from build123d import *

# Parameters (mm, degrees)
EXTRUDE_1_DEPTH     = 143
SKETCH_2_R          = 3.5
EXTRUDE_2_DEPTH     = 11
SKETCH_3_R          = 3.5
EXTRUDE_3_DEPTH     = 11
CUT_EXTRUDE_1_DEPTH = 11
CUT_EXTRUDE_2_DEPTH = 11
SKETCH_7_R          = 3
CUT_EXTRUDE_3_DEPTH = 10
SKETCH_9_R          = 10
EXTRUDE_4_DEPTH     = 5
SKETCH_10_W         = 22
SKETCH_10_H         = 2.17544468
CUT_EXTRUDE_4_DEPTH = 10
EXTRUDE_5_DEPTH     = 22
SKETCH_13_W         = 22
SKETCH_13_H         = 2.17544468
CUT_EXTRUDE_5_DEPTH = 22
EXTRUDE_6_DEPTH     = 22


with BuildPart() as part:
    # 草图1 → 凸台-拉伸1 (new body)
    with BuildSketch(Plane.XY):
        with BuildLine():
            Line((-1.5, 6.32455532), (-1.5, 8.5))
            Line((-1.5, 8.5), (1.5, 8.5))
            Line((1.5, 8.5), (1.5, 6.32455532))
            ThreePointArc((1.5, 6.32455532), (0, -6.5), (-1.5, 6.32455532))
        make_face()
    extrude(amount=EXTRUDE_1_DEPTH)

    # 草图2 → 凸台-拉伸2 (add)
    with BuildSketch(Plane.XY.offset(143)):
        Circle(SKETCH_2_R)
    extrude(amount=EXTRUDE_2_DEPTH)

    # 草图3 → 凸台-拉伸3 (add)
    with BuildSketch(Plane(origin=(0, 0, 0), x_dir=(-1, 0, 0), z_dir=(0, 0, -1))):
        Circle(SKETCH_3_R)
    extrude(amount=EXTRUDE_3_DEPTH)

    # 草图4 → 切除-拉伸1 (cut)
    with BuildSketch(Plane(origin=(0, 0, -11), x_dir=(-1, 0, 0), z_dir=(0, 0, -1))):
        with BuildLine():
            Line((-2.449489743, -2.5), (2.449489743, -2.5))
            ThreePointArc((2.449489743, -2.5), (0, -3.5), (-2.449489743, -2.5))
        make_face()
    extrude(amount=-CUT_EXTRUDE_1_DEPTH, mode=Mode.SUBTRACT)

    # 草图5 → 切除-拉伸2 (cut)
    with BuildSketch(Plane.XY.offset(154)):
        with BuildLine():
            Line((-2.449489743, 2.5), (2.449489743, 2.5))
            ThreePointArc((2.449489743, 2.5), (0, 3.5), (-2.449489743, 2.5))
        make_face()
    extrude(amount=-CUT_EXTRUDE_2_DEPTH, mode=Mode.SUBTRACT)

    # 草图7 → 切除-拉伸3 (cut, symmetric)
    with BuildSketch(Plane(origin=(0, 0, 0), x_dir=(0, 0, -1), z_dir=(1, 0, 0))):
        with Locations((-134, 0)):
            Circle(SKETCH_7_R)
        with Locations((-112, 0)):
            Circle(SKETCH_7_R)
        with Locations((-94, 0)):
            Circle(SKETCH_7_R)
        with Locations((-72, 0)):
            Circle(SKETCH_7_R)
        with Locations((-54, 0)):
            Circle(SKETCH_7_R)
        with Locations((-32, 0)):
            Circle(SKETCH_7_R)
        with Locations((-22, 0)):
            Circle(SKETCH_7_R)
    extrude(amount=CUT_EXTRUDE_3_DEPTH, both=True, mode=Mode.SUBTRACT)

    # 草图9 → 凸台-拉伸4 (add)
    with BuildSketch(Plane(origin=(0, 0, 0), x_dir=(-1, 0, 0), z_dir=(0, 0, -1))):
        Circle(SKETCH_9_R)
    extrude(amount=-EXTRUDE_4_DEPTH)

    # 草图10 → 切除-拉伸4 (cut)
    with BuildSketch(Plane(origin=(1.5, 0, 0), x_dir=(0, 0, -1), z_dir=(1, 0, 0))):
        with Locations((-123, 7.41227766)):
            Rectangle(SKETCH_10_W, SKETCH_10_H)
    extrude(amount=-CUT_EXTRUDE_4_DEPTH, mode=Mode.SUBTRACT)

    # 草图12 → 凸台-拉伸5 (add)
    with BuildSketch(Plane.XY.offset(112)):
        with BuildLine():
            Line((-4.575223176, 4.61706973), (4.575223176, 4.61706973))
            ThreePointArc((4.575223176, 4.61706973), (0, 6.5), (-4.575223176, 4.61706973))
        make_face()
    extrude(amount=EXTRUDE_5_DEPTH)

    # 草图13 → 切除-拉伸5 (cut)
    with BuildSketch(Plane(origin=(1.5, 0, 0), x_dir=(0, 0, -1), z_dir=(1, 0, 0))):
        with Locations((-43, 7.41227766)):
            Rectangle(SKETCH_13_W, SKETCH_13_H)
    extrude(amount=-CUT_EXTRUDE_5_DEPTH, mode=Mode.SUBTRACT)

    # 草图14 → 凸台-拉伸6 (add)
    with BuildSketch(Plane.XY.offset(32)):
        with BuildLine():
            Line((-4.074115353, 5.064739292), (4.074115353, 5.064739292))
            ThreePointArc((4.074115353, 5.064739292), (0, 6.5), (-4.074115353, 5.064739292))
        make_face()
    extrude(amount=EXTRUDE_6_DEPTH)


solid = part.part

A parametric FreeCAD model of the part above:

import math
import FreeCAD as App
import Part
import Sketcher

V = App.Vector
Q = App.Units.Quantity


def add_polygon(sketch, points):
    """Adds a closed chain of lines whose ends are joined by coincident constraints."""
    first, n = sketch.GeometryCount, len(points)
    for a, b in zip(points, points[1:] + points[:1]):
        sketch.addGeometry(Part.LineSegment(App.Vector(*a, 0), App.Vector(*b, 0)), False)
    for i in range(n):
        sketch.addConstraint(Sketcher.Constraint("Coincident", first + i, 2, first + (i + 1) % n, 1))

doc = App.newDocument("Part")
params = doc.addObject("Spreadsheet::Sheet", "Params")
for row, (alias, value) in enumerate([
    ("sketch1_radius", "6.5 mm"),
    ("sketch1_width", "3 mm"),
    ("pad1_length", "143 mm"),
    ("sketch2_diameter", "7 mm"),
    ("pad2_length", "11 mm"),
    ("sketch3_diameter", "7 mm"),
    ("pad3_length", "11 mm"),
    ("sketch4_radius", "3.5 mm"),
    ("pocket1_length", "11 mm"),
    ("sketch5_radius", "3.5 mm"),
    ("pocket2_length", "11 mm"),
    ("sketch6_diameter", "6 mm"),
    ("pocket3_length", "20 mm"),
    ("sketch7_diameter", "20 mm"),
    ("pad4_length", "5 mm"),
    ("sketch8_height", "22 mm"),
    ("pocket4_length", "10 mm"),
    ("sketch9_radius", "6.5 mm"),
    ("pad5_length", "22 mm"),
    ("sketch10_height", "22 mm"),
    ("pocket5_length", "22 mm"),
    ("sketch11_radius", "6.5 mm"),
    ("pad6_length", "22 mm"),
], start=1):
    params.set(f"A{row}", alias)
    params.set(f"B{row}", "=" + value)
    params.setAlias(f"B{row}", alias)

body = doc.addObject("PartDesign::Body", "Body")

# Sketch on XY plane
sketch1 = doc.addObject("Sketcher::SketchObject", "Sketch")
body.addObject(sketch1)
sketch1.AttachmentSupport = (doc.XY_Plane, [""])
sketch1.MapMode = "FlatFace"
sketch1.addGeometry(Part.LineSegment(V(-1.5, 8.5, 0), V(-1.5, 6.3, 0)), False)
sketch1.addGeometry(Part.ArcOfCircle(Part.Circle(V(0, 0, 0), V(0, 0, 1), 6.5), math.radians(103), math.radians(437)), False)
sketch1.addGeometry(Part.LineSegment(V(1.5, 6.3, 0), V(1.5, 8.5, 0)), False)
sketch1.addGeometry(Part.LineSegment(V(1.5, 8.5, 0), V(-1.5, 8.5, 0)), False)
sketch1.addConstraint(Sketcher.Constraint("Coincident", 0, 2, 1, 1))
sketch1.addConstraint(Sketcher.Constraint("Coincident", 1, 2, 2, 1))
sketch1.addConstraint(Sketcher.Constraint("Coincident", 2, 2, 3, 1))
sketch1.addConstraint(Sketcher.Constraint("Coincident", 3, 2, 0, 1))
sketch1.addConstraint(Sketcher.Constraint("Vertical", 0))
sketch1.addConstraint(Sketcher.Constraint("Vertical", 2))
sketch1.addConstraint(Sketcher.Constraint("Horizontal", 3))
sketch1.addConstraint(Sketcher.Constraint("Coincident", 1, 3, -1, 1))
sketch1.addConstraint(Sketcher.Constraint("Horizontal", 0, 2, 1, 2))
sketch1.addConstraint(Sketcher.Constraint("Radius", 1, Q("6.5 mm")))
sketch1.addConstraint(Sketcher.Constraint("DistanceX", 3, 2, 3, 1, Q("3 mm")))
sketch1.addConstraint(Sketcher.Constraint("DistanceY", -1, 1, 2, 2, Q("8.5 mm")))
sketch1.setExpression("Constraints[9]", "Params.sketch1_radius")
sketch1.setExpression("Constraints[10]", "Params.sketch1_width")
pad1 = doc.addObject("PartDesign::Pad", "Pad")
body.addObject(pad1)
pad1.Profile = sketch1
pad1.setExpression("Length", "Params.pad1_length")

# Sketch on XY plane
sketch2 = doc.addObject("Sketcher::SketchObject", "Sketch001")
body.addObject(sketch2)
sketch2.AttachmentSupport = (doc.XY_Plane, [""])
sketch2.MapMode = "FlatFace"
sketch2.AttachmentOffset = App.Placement(V(0, 0, 143), App.Rotation())
sketch2.addGeometry(Part.Circle(V(0, 0, 0), V(0, 0, 1), 3.5), False)
sketch2.addConstraint(Sketcher.Constraint("Coincident", 0, 3, -1, 1))
sketch2.addConstraint(Sketcher.Constraint("Diameter", 0, Q("7 mm")))
sketch2.setExpression("Constraints[1]", "Params.sketch2_diameter")
pad2 = doc.addObject("PartDesign::Pad", "Pad001")
body.addObject(pad2)
pad2.Profile = sketch2
pad2.setExpression("Length", "Params.pad2_length")

# Sketch on XY plane
sketch3 = doc.addObject("Sketcher::SketchObject", "Sketch002")
body.addObject(sketch3)
sketch3.AttachmentSupport = (doc.XY_Plane, [""])
sketch3.MapMode = "FlatFace"
sketch3.addGeometry(Part.Circle(V(0, 0, 0), V(0, 0, 1), 3.5), False)
sketch3.addConstraint(Sketcher.Constraint("Coincident", 0, 3, -1, 1))
sketch3.addConstraint(Sketcher.Constraint("Diameter", 0, Q("7 mm")))
sketch3.setExpression("Constraints[1]", "Params.sketch3_diameter")
pad3 = doc.addObject("PartDesign::Pad", "Pad002")
body.addObject(pad3)
pad3.Profile = sketch3
pad3.setExpression("Length", "Params.pad3_length")
pad3.Reversed = True

# Sketch on XY plane
sketch4 = doc.addObject("Sketcher::SketchObject", "Sketch003")
body.addObject(sketch4)
sketch4.AttachmentSupport = (doc.XY_Plane, [""])
sketch4.MapMode = "FlatFace"
sketch4.AttachmentOffset = App.Placement(V(0, 0, -11), App.Rotation())
sketch4.addGeometry(Part.LineSegment(V(-2.4, -2.5, 0), V(2.4, -2.5, 0)), False)
sketch4.addGeometry(Part.ArcOfCircle(Part.Circle(V(0, 0, 0), V(0, 0, 1), 3.5), math.radians(-134), math.radians(-46)), False)
sketch4.addConstraint(Sketcher.Constraint("Coincident", 0, 1, 1, 1))
sketch4.addConstraint(Sketcher.Constraint("Coincident", 1, 2, 0, 2))
sketch4.addConstraint(Sketcher.Constraint("Horizontal", 0))
sketch4.addConstraint(Sketcher.Constraint("Coincident", 1, 3, -1, 1))
sketch4.addConstraint(Sketcher.Constraint("Radius", 1, Q("3.5 mm")))
sketch4.addConstraint(Sketcher.Constraint("DistanceY", 0, 1, -1, 1, Q("2.5 mm")))
sketch4.setExpression("Constraints[4]", "Params.sketch4_radius")
pocket1 = doc.addObject("PartDesign::Pocket", "Pocket")
body.addObject(pocket1)
pocket1.Profile = sketch4
pocket1.setExpression("Length", "Params.pocket1_length")
pocket1.Reversed = True

# Sketch on XY plane
sketch5 = doc.addObject("Sketcher::SketchObject", "Sketch004")
body.addObject(sketch5)
sketch5.AttachmentSupport = (doc.XY_Plane, [""])
sketch5.MapMode = "FlatFace"
sketch5.AttachmentOffset = App.Placement(V(0, 0, 154), App.Rotation())
sketch5.addGeometry(Part.LineSegment(V(-2.4, 2.5, 0), V(2.4, 2.5, 0)), False)
sketch5.addGeometry(Part.ArcOfCircle(Part.Circle(V(0, 0, 0), V(0, 0, 1), 3.5), math.radians(46), math.radians(134)), False)
sketch5.addConstraint(Sketcher.Constraint("Coincident", 0, 1, 1, 2))
sketch5.addConstraint(Sketcher.Constraint("Coincident", 1, 1, 0, 2))
sketch5.addConstraint(Sketcher.Constraint("Horizontal", 0))
sketch5.addConstraint(Sketcher.Constraint("Coincident", 1, 3, -1, 1))
sketch5.addConstraint(Sketcher.Constraint("Radius", 1, Q("3.5 mm")))
sketch5.addConstraint(Sketcher.Constraint("DistanceY", -1, 1, 0, 1, Q("2.5 mm")))
sketch5.setExpression("Constraints[4]", "Params.sketch5_radius")
pocket2 = doc.addObject("PartDesign::Pocket", "Pocket001")
body.addObject(pocket2)
pocket2.Profile = sketch5
pocket2.setExpression("Length", "Params.pocket2_length")

# Sketch on YZ plane
sketch6 = doc.addObject("Sketcher::SketchObject", "Sketch005")
body.addObject(sketch6)
sketch6.AttachmentSupport = (doc.YZ_Plane, [""])
sketch6.MapMode = "FlatFace"
sketch6.addGeometry(Part.Circle(V(0, 134, 0), V(0, 0, 1), 3), False)
sketch6.addGeometry(Part.Circle(V(0, 112, 0), V(0, 0, 1), 3), False)
sketch6.addGeometry(Part.Circle(V(0, 94, 0), V(0, 0, 1), 3), False)
sketch6.addGeometry(Part.Circle(V(0, 72, 0), V(0, 0, 1), 3), False)
sketch6.addGeometry(Part.Circle(V(0, 54, 0), V(0, 0, 1), 3), False)
sketch6.addGeometry(Part.Circle(V(0, 32, 0), V(0, 0, 1), 3), False)
sketch6.addGeometry(Part.Circle(V(0, 22, 0), V(0, 0, 1), 3), False)
sketch6.addConstraint(Sketcher.Constraint("Equal", 0, 1))
sketch6.addConstraint(Sketcher.Constraint("Equal", 1, 2))
sketch6.addConstraint(Sketcher.Constraint("Equal", 2, 3))
sketch6.addConstraint(Sketcher.Constraint("Equal", 3, 4))
sketch6.addConstraint(Sketcher.Constraint("Equal", 4, 5))
sketch6.addConstraint(Sketcher.Constraint("Equal", 5, 6))
sketch6.addConstraint(Sketcher.Constraint("PointOnObject", 0, 3, -2))
sketch6.addConstraint(Sketcher.Constraint("PointOnObject", 1, 3, -2))
sketch6.addConstraint(Sketcher.Constraint("PointOnObject", 2, 3, -2))
sketch6.addConstraint(Sketcher.Constraint("PointOnObject", 3, 3, -2))
sketch6.addConstraint(Sketcher.Constraint("PointOnObject", 4, 3, -2))
sketch6.addConstraint(Sketcher.Constraint("PointOnObject", 5, 3, -2))
sketch6.addConstraint(Sketcher.Constraint("PointOnObject", 6, 3, -2))
sketch6.addConstraint(Sketcher.Constraint("Diameter", 0, Q("6 mm")))
sketch6.addConstraint(Sketcher.Constraint("DistanceY", -1, 1, 0, 3, Q("134 mm")))
sketch6.addConstraint(Sketcher.Constraint("DistanceY", -1, 1, 1, 3, Q("112 mm")))
sketch6.addConstraint(Sketcher.Constraint("DistanceY", -1, 1, 2, 3, Q("94 mm")))
sketch6.addConstraint(Sketcher.Constraint("DistanceY", -1, 1, 3, 3, Q("72 mm")))
sketch6.addConstraint(Sketcher.Constraint("DistanceY", -1, 1, 4, 3, Q("54 mm")))
sketch6.addConstraint(Sketcher.Constraint("DistanceY", -1, 1, 5, 3, Q("32 mm")))
sketch6.addConstraint(Sketcher.Constraint("DistanceY", -1, 1, 6, 3, Q("22 mm")))
sketch6.setExpression("Constraints[13]", "Params.sketch6_diameter")
pocket3 = doc.addObject("PartDesign::Pocket", "Pocket002")
body.addObject(pocket3)
pocket3.Profile = sketch6
pocket3.setExpression("Length", "Params.pocket3_length")
pocket3.Midplane = True

# Sketch on XY plane
sketch7 = doc.addObject("Sketcher::SketchObject", "Sketch006")
body.addObject(sketch7)
sketch7.AttachmentSupport = (doc.XY_Plane, [""])
sketch7.MapMode = "FlatFace"
sketch7.addGeometry(Part.Circle(V(0, 0, 0), V(0, 0, 1), 10), False)
sketch7.addConstraint(Sketcher.Constraint("Coincident", 0, 3, -1, 1))
sketch7.addConstraint(Sketcher.Constraint("Diameter", 0, Q("20 mm")))
sketch7.setExpression("Constraints[1]", "Params.sketch7_diameter")
pad4 = doc.addObject("PartDesign::Pad", "Pad003")
body.addObject(pad4)
pad4.Profile = sketch7
pad4.setExpression("Length", "Params.pad4_length")

# Sketch on YZ plane
sketch8 = doc.addObject("Sketcher::SketchObject", "Sketch007")
body.addObject(sketch8)
sketch8.AttachmentSupport = (doc.YZ_Plane, [""])
sketch8.MapMode = "FlatFace"
sketch8.AttachmentOffset = App.Placement(V(0, 0, 1.5), App.Rotation())
add_polygon(sketch8, [(8.5, 134), (6.3, 134), (6.3, 112), (8.5, 112)])  # lines 0-3
sketch8.addConstraint(Sketcher.Constraint("Horizontal", 0))
sketch8.addConstraint(Sketcher.Constraint("Vertical", 1))
sketch8.addConstraint(Sketcher.Constraint("Horizontal", 2))
sketch8.addConstraint(Sketcher.Constraint("Vertical", 3))
sketch8.addConstraint(Sketcher.Constraint("DistanceY", 1, 2, 1, 1, Q("22 mm")))
sketch8.addConstraint(Sketcher.Constraint("DistanceY", -1, 1, 0, 2, Q("134 mm")))
sketch8.addConstraint(Sketcher.Constraint("DistanceX", -1, 1, 2, 2, Q("8.5 mm")))
sketch8.addConstraint(Sketcher.Constraint("DistanceX", 0, 2, 0, 1, Q("2.175445 mm")))
sketch8.setExpression("Constraints[8]", "Params.sketch8_height")
pocket4 = doc.addObject("PartDesign::Pocket", "Pocket003")
body.addObject(pocket4)
pocket4.Profile = sketch8
pocket4.setExpression("Length", "Params.pocket4_length")

# Sketch on XY plane
sketch9 = doc.addObject("Sketcher::SketchObject", "Sketch008")
body.addObject(sketch9)
sketch9.AttachmentSupport = (doc.XY_Plane, [""])
sketch9.MapMode = "FlatFace"
sketch9.AttachmentOffset = App.Placement(V(0, 0, 112), App.Rotation())
sketch9.addGeometry(Part.LineSegment(V(-5, 5, 0), V(5, 5, 0)), False)
sketch9.addGeometry(Part.ArcOfCircle(Part.Circle(V(0, 0, 0), V(0, 0, 1), 7), math.radians(45), math.radians(135)), False)
sketch9.addConstraint(Sketcher.Constraint("Coincident", 0, 1, 1, 2))
sketch9.addConstraint(Sketcher.Constraint("Coincident", 1, 1, 0, 2))
sketch9.addConstraint(Sketcher.Constraint("Horizontal", 0))
sketch9.addConstraint(Sketcher.Constraint("Coincident", 1, 3, -1, 1))
sketch9.addConstraint(Sketcher.Constraint("Radius", 1, Q("6.5 mm")))
sketch9.addConstraint(Sketcher.Constraint("DistanceX", 0, 1, 0, 2, Q("9.150446 mm")))
sketch9.setExpression("Constraints[4]", "Params.sketch9_radius")
pad5 = doc.addObject("PartDesign::Pad", "Pad004")
body.addObject(pad5)
pad5.Profile = sketch9
pad5.setExpression("Length", "Params.pad5_length")

# Sketch on YZ plane
sketch10 = doc.addObject("Sketcher::SketchObject", "Sketch009")
body.addObject(sketch10)
sketch10.AttachmentSupport = (doc.YZ_Plane, [""])
sketch10.MapMode = "FlatFace"
sketch10.AttachmentOffset = App.Placement(V(0, 0, 1.5), App.Rotation())
add_polygon(sketch10, [(8.5, 54), (6.3, 54), (6.3, 32), (8.5, 32)])  # lines 0-3
sketch10.addConstraint(Sketcher.Constraint("Horizontal", 0))
sketch10.addConstraint(Sketcher.Constraint("Vertical", 1))
sketch10.addConstraint(Sketcher.Constraint("Horizontal", 2))
sketch10.addConstraint(Sketcher.Constraint("Vertical", 3))
sketch10.addConstraint(Sketcher.Constraint("DistanceY", 1, 2, 1, 1, Q("22 mm")))
sketch10.addConstraint(Sketcher.Constraint("DistanceY", -1, 1, 0, 2, Q("54 mm")))
sketch10.addConstraint(Sketcher.Constraint("DistanceX", -1, 1, 2, 2, Q("8.5 mm")))
sketch10.addConstraint(Sketcher.Constraint("DistanceX", 0, 2, 0, 1, Q("2.175445 mm")))
sketch10.setExpression("Constraints[8]", "Params.sketch10_height")
pocket5 = doc.addObject("PartDesign::Pocket", "Pocket004")
body.addObject(pocket5)
pocket5.Profile = sketch10
pocket5.setExpression("Length", "Params.pocket5_length")

# Sketch on XY plane
sketch11 = doc.addObject("Sketcher::SketchObject", "Sketch010")
body.addObject(sketch11)
sketch11.AttachmentSupport = (doc.XY_Plane, [""])
sketch11.MapMode = "FlatFace"
sketch11.AttachmentOffset = App.Placement(V(0, 0, 32), App.Rotation())
sketch11.addGeometry(Part.LineSegment(V(-4, 5, 0), V(4, 5, 0)), False)
sketch11.addGeometry(Part.ArcOfCircle(Part.Circle(V(0, 0, 0), V(0, 0, 1), 7), math.radians(51), math.radians(129)), False)
sketch11.addConstraint(Sketcher.Constraint("Coincident", 0, 1, 1, 2))
sketch11.addConstraint(Sketcher.Constraint("Coincident", 1, 1, 0, 2))
sketch11.addConstraint(Sketcher.Constraint("Horizontal", 0))
sketch11.addConstraint(Sketcher.Constraint("Coincident", 1, 3, -1, 1))
sketch11.addConstraint(Sketcher.Constraint("Radius", 1, Q("6.5 mm")))
sketch11.addConstraint(Sketcher.Constraint("DistanceX", 0, 1, 0, 2, Q("8.148231 mm")))
sketch11.setExpression("Constraints[4]", "Params.sketch11_radius")
pad6 = doc.addObject("PartDesign::Pad", "Pad005")
body.addObject(pad6)
pad6.Profile = sketch11
pad6.setExpression("Length", "Params.pad6_length")

doc.recompute()
